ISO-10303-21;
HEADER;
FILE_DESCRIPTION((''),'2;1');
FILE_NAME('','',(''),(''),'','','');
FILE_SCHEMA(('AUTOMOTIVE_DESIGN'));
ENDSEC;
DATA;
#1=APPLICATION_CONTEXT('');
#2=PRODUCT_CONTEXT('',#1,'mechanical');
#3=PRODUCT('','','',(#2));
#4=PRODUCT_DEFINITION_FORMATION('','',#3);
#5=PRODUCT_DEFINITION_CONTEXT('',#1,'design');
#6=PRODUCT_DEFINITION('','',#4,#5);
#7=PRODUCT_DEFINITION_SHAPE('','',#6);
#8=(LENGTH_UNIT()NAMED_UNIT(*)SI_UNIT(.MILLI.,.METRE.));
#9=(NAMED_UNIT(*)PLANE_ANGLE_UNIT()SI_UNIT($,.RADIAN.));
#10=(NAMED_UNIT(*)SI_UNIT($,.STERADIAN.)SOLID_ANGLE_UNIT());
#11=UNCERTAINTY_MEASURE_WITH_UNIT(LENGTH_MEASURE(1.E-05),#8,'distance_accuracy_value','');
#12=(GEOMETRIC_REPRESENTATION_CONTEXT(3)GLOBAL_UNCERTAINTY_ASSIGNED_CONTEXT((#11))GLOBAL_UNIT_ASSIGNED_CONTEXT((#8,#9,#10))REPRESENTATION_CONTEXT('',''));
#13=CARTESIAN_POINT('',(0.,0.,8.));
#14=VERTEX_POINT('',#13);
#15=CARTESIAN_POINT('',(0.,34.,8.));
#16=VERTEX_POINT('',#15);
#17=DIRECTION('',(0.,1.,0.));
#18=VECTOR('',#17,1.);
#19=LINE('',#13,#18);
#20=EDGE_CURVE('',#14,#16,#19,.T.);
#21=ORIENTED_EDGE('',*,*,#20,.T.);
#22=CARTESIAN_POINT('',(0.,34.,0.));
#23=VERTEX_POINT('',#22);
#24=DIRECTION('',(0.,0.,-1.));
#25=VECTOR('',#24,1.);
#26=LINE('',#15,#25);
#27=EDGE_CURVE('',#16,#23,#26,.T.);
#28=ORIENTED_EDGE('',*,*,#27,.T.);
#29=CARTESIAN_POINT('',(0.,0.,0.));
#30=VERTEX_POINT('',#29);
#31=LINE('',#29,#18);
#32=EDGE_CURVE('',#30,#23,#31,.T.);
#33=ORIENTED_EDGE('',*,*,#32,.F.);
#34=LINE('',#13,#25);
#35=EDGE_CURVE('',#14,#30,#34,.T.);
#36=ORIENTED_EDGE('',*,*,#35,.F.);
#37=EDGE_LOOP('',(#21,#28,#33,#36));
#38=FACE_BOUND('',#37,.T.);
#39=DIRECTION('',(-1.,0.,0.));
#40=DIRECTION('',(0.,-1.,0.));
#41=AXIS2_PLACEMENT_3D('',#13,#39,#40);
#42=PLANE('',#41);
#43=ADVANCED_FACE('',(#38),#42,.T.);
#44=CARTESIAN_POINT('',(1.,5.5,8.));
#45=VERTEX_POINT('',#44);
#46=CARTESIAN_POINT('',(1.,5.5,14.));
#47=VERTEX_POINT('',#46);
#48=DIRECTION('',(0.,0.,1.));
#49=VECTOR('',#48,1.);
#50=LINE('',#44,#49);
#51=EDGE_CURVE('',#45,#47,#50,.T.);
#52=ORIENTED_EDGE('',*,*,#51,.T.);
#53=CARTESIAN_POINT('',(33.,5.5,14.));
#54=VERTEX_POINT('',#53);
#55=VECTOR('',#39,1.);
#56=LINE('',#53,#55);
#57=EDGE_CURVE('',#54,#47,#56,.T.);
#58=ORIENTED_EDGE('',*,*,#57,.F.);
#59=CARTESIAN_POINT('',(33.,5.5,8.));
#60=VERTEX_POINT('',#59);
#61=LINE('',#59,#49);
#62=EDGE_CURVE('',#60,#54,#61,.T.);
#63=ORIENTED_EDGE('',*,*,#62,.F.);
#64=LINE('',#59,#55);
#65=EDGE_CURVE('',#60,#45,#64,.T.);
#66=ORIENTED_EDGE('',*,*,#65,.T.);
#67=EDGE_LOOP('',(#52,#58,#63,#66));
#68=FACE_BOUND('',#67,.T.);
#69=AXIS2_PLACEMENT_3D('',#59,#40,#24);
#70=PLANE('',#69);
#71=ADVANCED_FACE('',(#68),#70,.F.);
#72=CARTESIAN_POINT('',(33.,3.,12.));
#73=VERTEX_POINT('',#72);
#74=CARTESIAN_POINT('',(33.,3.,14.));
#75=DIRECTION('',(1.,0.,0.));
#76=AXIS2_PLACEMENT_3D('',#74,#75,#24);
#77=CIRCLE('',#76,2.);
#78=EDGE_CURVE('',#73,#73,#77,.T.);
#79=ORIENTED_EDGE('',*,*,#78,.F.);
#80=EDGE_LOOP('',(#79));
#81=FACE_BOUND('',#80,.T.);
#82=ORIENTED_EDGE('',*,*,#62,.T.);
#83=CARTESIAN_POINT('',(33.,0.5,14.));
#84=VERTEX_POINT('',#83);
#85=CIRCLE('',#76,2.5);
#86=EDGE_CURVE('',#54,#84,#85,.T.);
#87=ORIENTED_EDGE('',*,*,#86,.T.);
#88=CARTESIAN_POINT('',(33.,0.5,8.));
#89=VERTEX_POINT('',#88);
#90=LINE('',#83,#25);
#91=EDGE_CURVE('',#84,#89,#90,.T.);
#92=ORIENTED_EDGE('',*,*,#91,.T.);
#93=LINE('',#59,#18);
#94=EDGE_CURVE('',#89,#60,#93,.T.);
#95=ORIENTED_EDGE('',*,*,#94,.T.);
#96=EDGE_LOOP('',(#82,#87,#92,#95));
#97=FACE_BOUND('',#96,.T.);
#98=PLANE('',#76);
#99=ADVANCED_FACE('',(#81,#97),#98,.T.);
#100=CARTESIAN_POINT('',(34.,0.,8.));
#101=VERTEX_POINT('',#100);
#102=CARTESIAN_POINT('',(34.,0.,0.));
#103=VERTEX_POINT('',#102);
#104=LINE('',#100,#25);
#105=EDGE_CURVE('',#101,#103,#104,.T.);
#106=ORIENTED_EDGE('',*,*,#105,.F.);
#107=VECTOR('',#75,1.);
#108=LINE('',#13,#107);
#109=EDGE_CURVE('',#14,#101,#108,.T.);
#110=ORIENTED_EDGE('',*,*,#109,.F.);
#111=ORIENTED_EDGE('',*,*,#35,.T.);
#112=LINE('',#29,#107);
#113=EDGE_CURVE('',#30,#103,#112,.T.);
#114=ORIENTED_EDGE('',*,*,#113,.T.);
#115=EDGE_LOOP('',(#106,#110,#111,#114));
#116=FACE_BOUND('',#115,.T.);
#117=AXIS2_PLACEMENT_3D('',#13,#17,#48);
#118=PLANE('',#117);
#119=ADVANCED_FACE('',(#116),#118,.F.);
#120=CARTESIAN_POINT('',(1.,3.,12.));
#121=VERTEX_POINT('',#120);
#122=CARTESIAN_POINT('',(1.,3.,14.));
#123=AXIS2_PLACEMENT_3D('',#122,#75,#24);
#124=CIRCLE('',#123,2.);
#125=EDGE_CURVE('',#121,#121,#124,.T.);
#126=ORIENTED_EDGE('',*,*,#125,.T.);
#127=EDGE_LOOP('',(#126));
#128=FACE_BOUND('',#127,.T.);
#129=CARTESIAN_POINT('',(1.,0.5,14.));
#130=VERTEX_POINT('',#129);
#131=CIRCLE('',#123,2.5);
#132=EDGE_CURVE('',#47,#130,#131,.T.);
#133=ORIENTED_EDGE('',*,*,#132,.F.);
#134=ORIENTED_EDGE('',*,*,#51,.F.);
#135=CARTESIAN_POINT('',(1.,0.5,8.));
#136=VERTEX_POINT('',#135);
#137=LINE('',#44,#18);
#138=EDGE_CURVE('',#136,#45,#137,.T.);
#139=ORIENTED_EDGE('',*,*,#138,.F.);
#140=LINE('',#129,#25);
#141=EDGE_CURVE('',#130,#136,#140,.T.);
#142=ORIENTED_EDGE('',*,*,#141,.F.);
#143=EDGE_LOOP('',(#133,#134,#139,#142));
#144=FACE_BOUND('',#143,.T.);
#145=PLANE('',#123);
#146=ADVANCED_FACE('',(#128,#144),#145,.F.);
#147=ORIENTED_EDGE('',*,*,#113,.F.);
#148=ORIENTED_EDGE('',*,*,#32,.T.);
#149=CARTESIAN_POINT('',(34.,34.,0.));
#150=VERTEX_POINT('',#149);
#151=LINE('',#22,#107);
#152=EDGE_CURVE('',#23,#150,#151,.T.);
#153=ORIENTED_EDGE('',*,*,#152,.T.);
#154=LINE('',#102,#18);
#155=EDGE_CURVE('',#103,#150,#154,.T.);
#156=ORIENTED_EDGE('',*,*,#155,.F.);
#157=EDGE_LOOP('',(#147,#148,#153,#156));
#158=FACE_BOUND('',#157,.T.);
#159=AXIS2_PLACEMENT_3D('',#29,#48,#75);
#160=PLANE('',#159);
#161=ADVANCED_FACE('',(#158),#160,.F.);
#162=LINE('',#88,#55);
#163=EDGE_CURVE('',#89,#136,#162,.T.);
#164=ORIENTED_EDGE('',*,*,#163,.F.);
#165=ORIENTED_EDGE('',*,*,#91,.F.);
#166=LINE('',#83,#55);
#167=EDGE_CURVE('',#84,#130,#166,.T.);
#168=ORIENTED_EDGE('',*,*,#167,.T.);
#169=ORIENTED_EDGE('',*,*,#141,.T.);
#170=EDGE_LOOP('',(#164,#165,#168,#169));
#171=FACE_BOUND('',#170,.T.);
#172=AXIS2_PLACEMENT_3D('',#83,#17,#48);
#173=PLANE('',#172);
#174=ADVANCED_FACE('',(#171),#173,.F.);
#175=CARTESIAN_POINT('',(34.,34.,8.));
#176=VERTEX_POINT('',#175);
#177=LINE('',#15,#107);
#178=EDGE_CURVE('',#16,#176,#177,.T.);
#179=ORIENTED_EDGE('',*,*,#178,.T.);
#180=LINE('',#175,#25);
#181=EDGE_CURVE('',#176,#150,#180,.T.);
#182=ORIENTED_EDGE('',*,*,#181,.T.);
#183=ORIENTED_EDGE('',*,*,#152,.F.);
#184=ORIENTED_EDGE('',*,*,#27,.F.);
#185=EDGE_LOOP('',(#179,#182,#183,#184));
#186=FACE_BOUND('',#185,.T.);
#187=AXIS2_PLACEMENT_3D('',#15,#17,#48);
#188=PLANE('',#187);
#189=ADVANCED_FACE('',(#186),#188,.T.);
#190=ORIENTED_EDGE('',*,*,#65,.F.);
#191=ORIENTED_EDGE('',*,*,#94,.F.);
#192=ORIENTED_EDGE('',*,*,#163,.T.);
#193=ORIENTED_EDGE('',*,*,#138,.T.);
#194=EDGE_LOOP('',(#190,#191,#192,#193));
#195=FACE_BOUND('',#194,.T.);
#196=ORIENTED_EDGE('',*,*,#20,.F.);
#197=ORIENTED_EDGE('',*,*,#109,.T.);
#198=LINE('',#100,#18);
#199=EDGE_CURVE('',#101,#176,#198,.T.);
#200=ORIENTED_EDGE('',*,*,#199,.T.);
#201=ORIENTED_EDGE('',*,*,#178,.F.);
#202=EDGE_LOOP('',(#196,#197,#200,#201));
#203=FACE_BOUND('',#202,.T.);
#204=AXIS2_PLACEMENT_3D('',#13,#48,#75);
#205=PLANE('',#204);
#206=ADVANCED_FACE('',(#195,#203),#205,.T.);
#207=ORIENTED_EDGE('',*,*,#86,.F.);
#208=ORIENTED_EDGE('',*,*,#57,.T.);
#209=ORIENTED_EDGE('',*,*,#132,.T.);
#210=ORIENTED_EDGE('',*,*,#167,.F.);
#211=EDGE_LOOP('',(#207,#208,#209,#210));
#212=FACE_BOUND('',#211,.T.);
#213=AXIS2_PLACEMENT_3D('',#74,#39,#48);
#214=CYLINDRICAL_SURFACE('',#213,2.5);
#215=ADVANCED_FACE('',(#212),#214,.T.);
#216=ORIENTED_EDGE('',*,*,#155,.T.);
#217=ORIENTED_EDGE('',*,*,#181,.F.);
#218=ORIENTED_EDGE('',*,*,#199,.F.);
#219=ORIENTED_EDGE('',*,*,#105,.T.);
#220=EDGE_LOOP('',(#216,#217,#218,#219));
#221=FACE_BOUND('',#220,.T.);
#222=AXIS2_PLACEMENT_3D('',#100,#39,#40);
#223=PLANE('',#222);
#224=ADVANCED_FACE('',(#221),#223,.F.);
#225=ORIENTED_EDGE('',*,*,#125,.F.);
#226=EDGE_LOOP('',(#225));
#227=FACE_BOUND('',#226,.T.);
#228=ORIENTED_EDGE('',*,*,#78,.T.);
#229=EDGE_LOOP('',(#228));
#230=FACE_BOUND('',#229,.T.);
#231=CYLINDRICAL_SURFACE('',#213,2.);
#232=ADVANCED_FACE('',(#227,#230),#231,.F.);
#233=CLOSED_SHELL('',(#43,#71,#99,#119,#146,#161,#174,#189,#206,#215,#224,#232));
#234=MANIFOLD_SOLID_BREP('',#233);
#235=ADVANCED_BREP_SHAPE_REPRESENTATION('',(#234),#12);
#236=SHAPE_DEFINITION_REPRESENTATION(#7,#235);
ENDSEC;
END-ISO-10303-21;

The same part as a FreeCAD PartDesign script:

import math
import FreeCAD as App
import Part
import Sketcher

V = App.Vector


def add_polygon(sketch, points):
    """Adds a closed chain of lines whose ends are joined by coincident constraints."""
    first, n = sketch.GeometryCount, len(points)
    for a, b in zip(points, points[1:] + points[:1]):
        sketch.addGeometry(Part.LineSegment(App.Vector(*a, 0), App.Vector(*b, 0)), False)
    for i in range(n):
        sketch.addConstraint(Sketcher.Constraint("Coincident", first + i, 2, first + (i + 1) % n, 1))

doc = App.newDocument("Part")
body = doc.addObject("PartDesign::Body", "Body")

sketch1 = body.newObject("Sketcher::SketchObject", "Sketch")
sketch1.AttachmentSupport = (doc.getObject("XY_Plane"), [""])
sketch1.MapMode = "FlatFace"
add_polygon(sketch1, [(0, 34), (0, 0), (34, 0), (34, 34)])
sketch1.addConstraint([
    Sketcher.Constraint("Vertical", 0),
    Sketcher.Constraint("Horizontal", 1),
    Sketcher.Constraint("Vertical", 2),
    Sketcher.Constraint("Horizontal", 3),
    Sketcher.Constraint("Coincident", 0, 2, -1, 1),
    Sketcher.Constraint("Equal", 3, 0),
    Sketcher.Constraint("DistanceX", 1, 1, 1, 2, 34.0),
])
pad1 = body.newObject("PartDesign::Pad", "Pad")
pad1.Profile = sketch1
pad1.Length = 8

sketch2 = body.newObject("Sketcher::SketchObject", "Sketch001")
sketch2.AttachmentSupport = (doc.getObject("YZ_Plane"), [""])
sketch2.MapMode = "FlatFace"
sketch2.AttachmentOffset = App.Placement(V(0, 0, 1), App.Rotation())
sketch2.addGeometry([
    Part.LineSegment(V(5.5, 8, 0), V(5.5, 14, 0)),
    Part.ArcOfCircle(Part.Circle(V(3, 14, 0), V(0, 0, 1), 2.5), math.radians(0), math.radians(180)),
    Part.LineSegment(V(0.5, 14, 0), V(0.5, 8, 0)),
    Part.LineSegment(V(0.5, 8, 0), V(5.5, 8, 0)),
    Part.Circle(V(3, 14, 0), V(0, 0, 1), 2),
], False)
sketch2.addConstraint([
    Sketcher.Constraint("Tangent", 0, 2, 1, 1),
    Sketcher.Constraint("Tangent", 1, 2, 2, 1),
    Sketcher.Constraint("Coincident", 2, 2, 3, 1),
    Sketcher.Constraint("Coincident", 3, 2, 0, 1),
    Sketcher.Constraint("Vertical", 0),
    Sketcher.Constraint("Vertical", 2),
    Sketcher.Constraint("Horizontal", 3),
    Sketcher.Constraint("Coincident", 4, 3, 1, 3),
    Sketcher.Constraint("Diameter", 4, 4.0),
    Sketcher.Constraint("Radius", 1, 2.5),
    Sketcher.Constraint("DistanceY", 0, 1, 0, 2, 6.0),
    Sketcher.Constraint("DistanceX", -1, 1, 1, 3, 3.0),
    Sketcher.Constraint("DistanceY", -1, 1, 1, 3, 14.0),
])
pad2 = body.newObject("PartDesign::Pad", "Pad001")
pad2.Profile = sketch2
pad2.Length = 32

doc.recompute()
